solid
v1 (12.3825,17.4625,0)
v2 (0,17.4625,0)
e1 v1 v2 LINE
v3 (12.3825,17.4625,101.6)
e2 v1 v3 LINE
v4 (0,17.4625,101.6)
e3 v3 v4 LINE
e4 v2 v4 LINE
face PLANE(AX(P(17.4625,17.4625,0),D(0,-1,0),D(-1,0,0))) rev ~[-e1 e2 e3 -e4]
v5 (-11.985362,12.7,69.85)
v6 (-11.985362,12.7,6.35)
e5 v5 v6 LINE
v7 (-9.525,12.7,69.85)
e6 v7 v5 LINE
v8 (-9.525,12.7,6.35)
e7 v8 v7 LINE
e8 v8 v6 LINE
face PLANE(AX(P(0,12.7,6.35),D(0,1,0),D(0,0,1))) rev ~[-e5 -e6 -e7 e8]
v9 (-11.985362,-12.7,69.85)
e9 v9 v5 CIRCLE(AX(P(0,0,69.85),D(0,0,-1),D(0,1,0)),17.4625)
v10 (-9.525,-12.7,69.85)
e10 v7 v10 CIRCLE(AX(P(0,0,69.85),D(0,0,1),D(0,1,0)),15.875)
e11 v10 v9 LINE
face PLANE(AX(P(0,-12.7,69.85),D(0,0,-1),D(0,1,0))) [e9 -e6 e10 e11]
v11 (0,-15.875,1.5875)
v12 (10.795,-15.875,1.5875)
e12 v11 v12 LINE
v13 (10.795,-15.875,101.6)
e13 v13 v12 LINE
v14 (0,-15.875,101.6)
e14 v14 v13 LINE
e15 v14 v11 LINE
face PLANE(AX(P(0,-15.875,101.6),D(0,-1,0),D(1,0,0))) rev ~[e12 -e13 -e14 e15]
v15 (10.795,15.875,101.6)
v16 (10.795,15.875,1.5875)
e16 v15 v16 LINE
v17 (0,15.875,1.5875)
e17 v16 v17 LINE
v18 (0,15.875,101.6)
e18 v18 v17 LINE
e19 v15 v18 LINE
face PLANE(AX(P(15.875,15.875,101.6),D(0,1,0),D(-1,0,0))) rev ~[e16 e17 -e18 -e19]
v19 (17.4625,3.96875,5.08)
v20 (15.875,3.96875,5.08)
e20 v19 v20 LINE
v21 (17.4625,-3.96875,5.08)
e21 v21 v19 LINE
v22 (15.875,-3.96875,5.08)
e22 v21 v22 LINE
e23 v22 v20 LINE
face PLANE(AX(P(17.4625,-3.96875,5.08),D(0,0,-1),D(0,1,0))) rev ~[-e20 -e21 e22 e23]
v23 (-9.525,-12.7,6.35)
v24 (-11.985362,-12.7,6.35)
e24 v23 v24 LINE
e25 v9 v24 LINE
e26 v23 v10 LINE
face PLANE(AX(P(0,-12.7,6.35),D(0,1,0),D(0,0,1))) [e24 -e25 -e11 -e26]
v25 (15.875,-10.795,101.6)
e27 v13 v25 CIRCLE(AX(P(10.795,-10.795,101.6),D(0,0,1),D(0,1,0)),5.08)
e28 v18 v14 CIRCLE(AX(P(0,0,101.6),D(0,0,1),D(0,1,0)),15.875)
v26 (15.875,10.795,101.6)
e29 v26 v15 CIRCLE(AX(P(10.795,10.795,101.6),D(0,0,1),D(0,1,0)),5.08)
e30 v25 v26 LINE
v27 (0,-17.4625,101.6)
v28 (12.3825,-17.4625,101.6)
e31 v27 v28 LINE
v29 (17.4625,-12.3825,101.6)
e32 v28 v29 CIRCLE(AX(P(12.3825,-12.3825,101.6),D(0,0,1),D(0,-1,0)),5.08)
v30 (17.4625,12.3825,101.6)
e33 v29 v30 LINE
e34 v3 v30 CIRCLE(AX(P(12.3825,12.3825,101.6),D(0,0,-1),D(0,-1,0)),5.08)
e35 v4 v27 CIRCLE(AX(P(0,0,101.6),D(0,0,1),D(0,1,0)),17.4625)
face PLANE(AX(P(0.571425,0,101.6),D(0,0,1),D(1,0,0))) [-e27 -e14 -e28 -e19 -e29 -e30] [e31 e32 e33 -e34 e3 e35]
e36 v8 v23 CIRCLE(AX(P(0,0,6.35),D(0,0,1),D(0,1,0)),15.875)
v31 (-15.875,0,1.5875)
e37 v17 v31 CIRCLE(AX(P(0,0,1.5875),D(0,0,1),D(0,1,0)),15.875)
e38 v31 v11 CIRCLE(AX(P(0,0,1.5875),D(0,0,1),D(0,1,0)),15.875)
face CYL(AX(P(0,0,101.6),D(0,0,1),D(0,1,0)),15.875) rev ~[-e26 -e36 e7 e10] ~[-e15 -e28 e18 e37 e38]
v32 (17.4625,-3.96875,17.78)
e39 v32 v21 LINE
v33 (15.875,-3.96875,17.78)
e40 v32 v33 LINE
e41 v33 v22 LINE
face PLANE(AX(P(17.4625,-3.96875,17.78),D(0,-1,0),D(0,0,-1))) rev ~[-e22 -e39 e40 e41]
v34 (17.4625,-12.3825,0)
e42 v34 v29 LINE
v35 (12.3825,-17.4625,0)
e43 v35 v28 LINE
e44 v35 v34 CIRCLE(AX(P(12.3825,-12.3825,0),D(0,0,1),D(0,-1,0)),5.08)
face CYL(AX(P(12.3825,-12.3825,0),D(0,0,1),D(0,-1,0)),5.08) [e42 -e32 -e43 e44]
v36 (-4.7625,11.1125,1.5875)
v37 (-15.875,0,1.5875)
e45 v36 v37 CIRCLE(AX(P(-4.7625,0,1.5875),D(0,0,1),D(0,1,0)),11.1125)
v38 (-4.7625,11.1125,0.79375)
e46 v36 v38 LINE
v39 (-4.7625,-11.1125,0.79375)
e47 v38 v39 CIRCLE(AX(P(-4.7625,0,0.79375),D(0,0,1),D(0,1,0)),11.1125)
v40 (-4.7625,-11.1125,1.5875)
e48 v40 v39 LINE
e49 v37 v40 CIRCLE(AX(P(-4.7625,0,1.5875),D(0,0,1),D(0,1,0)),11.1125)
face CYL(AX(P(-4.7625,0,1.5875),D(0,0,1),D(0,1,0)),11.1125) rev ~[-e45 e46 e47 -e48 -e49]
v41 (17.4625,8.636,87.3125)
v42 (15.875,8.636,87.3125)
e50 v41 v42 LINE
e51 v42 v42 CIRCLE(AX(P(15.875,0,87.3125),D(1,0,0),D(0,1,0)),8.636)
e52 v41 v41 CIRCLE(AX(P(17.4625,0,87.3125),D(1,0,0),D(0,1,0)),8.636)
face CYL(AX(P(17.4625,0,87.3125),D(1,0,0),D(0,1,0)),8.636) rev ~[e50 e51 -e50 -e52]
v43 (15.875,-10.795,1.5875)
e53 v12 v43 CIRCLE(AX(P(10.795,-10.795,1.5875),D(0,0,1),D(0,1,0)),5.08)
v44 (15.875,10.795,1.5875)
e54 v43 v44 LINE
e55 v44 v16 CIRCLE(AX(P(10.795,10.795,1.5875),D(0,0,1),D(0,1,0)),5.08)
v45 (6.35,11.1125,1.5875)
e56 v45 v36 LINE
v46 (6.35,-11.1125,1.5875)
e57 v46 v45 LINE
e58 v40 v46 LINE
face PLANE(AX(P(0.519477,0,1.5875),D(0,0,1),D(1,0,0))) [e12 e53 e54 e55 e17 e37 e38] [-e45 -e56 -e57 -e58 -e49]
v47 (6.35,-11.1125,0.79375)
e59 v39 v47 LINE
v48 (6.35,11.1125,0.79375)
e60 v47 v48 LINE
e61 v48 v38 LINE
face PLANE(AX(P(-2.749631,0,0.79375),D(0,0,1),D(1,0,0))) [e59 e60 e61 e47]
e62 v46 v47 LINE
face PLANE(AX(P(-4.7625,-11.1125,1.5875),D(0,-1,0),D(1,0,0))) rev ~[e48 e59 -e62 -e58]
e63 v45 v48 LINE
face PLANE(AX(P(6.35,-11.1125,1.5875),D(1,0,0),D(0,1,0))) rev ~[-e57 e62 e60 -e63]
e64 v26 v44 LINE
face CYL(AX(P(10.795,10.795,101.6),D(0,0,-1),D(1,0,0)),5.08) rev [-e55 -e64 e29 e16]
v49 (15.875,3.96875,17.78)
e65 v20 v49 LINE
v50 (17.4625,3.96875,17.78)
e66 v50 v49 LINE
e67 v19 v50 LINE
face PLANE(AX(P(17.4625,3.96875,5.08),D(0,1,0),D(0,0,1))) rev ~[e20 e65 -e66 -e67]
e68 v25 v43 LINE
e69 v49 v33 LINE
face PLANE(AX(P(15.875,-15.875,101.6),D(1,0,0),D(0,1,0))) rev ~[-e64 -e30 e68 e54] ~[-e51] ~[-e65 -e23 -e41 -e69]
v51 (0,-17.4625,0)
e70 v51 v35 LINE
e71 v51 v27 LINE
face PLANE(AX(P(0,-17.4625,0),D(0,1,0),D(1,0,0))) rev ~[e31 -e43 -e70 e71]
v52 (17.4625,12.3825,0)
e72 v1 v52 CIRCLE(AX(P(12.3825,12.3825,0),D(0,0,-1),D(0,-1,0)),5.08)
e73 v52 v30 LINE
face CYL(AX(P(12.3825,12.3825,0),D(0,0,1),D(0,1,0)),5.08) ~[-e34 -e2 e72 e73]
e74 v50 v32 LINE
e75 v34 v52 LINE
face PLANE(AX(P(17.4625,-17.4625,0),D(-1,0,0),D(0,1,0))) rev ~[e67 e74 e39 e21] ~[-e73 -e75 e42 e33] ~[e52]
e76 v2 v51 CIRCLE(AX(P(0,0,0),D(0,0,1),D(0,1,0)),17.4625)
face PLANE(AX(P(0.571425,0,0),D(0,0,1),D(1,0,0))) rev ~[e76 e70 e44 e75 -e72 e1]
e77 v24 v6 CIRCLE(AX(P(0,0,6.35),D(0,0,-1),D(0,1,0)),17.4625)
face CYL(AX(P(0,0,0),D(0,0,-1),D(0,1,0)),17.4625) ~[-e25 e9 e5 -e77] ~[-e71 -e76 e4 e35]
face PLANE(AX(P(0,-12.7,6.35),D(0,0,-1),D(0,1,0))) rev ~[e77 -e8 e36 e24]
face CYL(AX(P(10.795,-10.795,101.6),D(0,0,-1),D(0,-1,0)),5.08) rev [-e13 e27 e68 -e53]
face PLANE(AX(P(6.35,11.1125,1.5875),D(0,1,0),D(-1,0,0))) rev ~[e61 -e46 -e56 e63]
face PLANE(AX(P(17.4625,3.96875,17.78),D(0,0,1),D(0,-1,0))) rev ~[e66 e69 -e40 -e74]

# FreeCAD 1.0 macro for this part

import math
import FreeCAD as App
import Part
import Sketcher

V = App.Vector
Q = App.Units.Quantity


def edges_at(feature, points):
    """Names of the edges that pass closest to the given points."""
    edges = feature.Shape.Edges
    near = lambda p: min(range(len(edges)), key=lambda i: edges[i].distToShape(Part.Vertex(*p))[0])
    return sorted({f"Edge{near(p) + 1}" for p in points})


def add_polygon(sketch, points):
    """Adds a closed chain of lines whose ends are joined by coincident constraints."""
    first, n = sketch.GeometryCount, len(points)
    for a, b in zip(points, points[1:] + points[:1]):
        sketch.addGeometry(Part.LineSegment(App.Vector(*a, 0), App.Vector(*b, 0)), False)
    for i in range(n):
        sketch.addConstraint(Sketcher.Constraint("Coincident", first + i, 2, first + (i + 1) % n, 1))

doc = App.newDocument("Part")
params = doc.addObject("Spreadsheet::Sheet", "Params")
for row, (alias, value) in enumerate([
    ("sketch1_radius", "0.6875 in"),
    ("sketch1_width", "0.6875 in"),
    ("pad1_length", "4 in"),
    ("sketch2_radius", "0.625 in"),
    ("sketch2_width", "0.625 in"),
    ("pocket1_length", "3.9375 in"),
    ("fillet_radius", "0.2 in"),
    ("fillet2_radius", "0.2 in"),
    ("sketch3_diameter", "0.68 in"),
    ("pocket2_length", "1 in"),
    ("sketch4_height", "0.5 in"),
    ("sketch4_width", "0.3125 in"),
    ("pocket3_length", "1 in"),
    ("sketch5_width", "1 in"),
    ("sketch5_height", "2.5 in"),
    ("pocket4_length", "1 in"),
    ("sketch6_radius", "0.4375 in"),
    ("sketch6_width", "0.4375 in"),
    ("pocket5_length", "0.03125 in"),
], start=1):
    params.set(f"A{row}", alias)
    params.set(f"B{row}", "=" + value)
    params.setAlias(f"B{row}", alias)

body = doc.addObject("PartDesign::Body", "Body")

sketch1 = doc.addObject("Sketcher::SketchObject", "Sketch")
body.addObject(sketch1)
sketch1.AttachmentSupport = (doc.XY_Plane, [""])
sketch1.MapMode = "FlatFace"
sketch1.addGeometry(Part.ArcOfCircle(Part.Circle(V(0, 0, 0), V(0, 0, 1), 17), math.radians(90), math.radians(270)), False)
sketch1.addGeometry(Part.LineSegment(V(0, -17, 0), V(17, -17, 0)), False)
sketch1.addGeometry(Part.LineSegment(V(17, -17, 0), V(17, 17, 0)), False)
sketch1.addGeometry(Part.LineSegment(V(17, 17, 0), V(0, 17, 0)), False)
sketch1.addConstraint(Sketcher.Constraint("Tangent", 0, 2, 1, 1))
sketch1.addConstraint(Sketcher.Constraint("Coincident", 1, 2, 2, 1))
sketch1.addConstraint(Sketcher.Constraint("Coincident", 2, 2, 3, 1))
sketch1.addConstraint(Sketcher.Constraint("Tangent", 3, 2, 0, 1))
sketch1.addConstraint(Sketcher.Constraint("Horizontal", 1))
sketch1.addConstraint(Sketcher.Constraint("Vertical", 2))
sketch1.addConstraint(Sketcher.Constraint("Horizontal", 3))
sketch1.addConstraint(Sketcher.Constraint("Coincident", 0, 3, -1, 1))
sketch1.addConstraint(Sketcher.Constraint("Radius", 0, Q("0.6875 in")))
sketch1.addConstraint(Sketcher.Constraint("DistanceX", 1, 1, 1, 2, Q("0.6875 in")))
sketch1.setExpression("Constraints[8]", "Params.sketch1_radius")
sketch1.setExpression("Constraints[9]", "Params.sketch1_width")
pad1 = doc.addObject("PartDesign::Pad", "Pad")
body.addObject(pad1)
pad1.Profile = sketch1
pad1.setExpression("Length", "Params.pad1_length")

sketch2 = doc.addObject("Sketcher::SketchObject", "Sketch001")
body.addObject(sketch2)
sketch2.AttachmentSupport = (doc.XY_Plane, [""])
sketch2.MapMode = "FlatFace"
sketch2.AttachmentOffset = App.Placement(V(0, 0, 4 * 25.4), App.Rotation())
sketch2.addGeometry(Part.ArcOfCircle(Part.Circle(V(0, 0, 0), V(0, 0, 1), 16), math.radians(90), math.radians(270)), False)
sketch2.addGeometry(Part.LineSegment(V(0, -16, 0), V(16, -16, 0)), False)
sketch2.addGeometry(Part.LineSegment(V(16, -16, 0), V(16, 16, 0)), False)
sketch2.addGeometry(Part.LineSegment(V(16, 16, 0), V(0, 16, 0)), False)
sketch2.addConstraint(Sketcher.Constraint("Tangent", 0, 2, 1, 1))
sketch2.addConstraint(Sketcher.Constraint("Coincident", 1, 2, 2, 1))
sketch2.addConstraint(Sketcher.Constraint("Coincident", 2, 2, 3, 1))
sketch2.addConstraint(Sketcher.Constraint("Tangent", 3, 2, 0, 1))
sketch2.addConstraint(Sketcher.Constraint("Horizontal", 1))
sketch2.addConstraint(Sketcher.Constraint("Vertical", 2))
sketch2.addConstraint(Sketcher.Constraint("Horizontal", 3))
sketch2.addConstraint(Sketcher.Constraint("Coincident", 0, 3, -1, 1))
sketch2.addConstraint(Sketcher.Constraint("Radius", 0, Q("0.625 in")))
sketch2.addConstraint(Sketcher.Constraint("DistanceX", 1, 1, 1, 2, Q("0.625 in")))
sketch2.setExpression("Constraints[8]", "Params.sketch2_radius")
sketch2.setExpression("Constraints[9]", "Params.sketch2_width")
pocket1 = doc.addObject("PartDesign::Pocket", "Pocket")
body.addObject(pocket1)
pocket1.Profile = sketch2
pocket1.setExpression("Length", "Params.pocket1_length")
doc.recompute()

fillet = doc.addObject("PartDesign::Fillet", "Fillet")
body.addObject(fillet)
fillet.Base = (pocket1, edges_at(pocket1, [(17.462, -17.462, 50.8), (17.462, 17.462, 50.8)]))
fillet.setExpression("Radius", "Params.fillet_radius")
doc.recompute()

fillet2 = doc.addObject("PartDesign::Fillet", "Fillet001")
body.addObject(fillet2)
fillet2.Base = (fillet, edges_at(fillet, [(15.875, 15.875, 51.594), (15.875, -15.875, 51.594)]))
fillet2.setExpression("Radius", "Params.fillet2_radius")

sketch3 = doc.addObject("Sketcher::SketchObject", "Sketch002")
body.addObject(sketch3)
sketch3.AttachmentSupport = (doc.YZ_Plane, [""])
sketch3.MapMode = "FlatFace"
sketch3.AttachmentOffset = App.Placement(V(0, 0, 0.6875 * 25.4), App.Rotation())
sketch3.addGeometry(Part.Circle(V(0, 87, 0), V(0, 0, 1), 9), False)
sketch3.addConstraint(Sketcher.Constraint("PointOnObject", 0, 3, -2))
sketch3.addConstraint(Sketcher.Constraint("Diameter", 0, Q("0.68 in")))
sketch3.addConstraint(Sketcher.Constraint("DistanceY", -1, 1, 0, 3, Q("3.4375 in")))
sketch3.setExpression("Constraints[1]", "Params.sketch3_diameter")
pocket2 = doc.addObject("PartDesign::Pocket", "Pocket001")
body.addObject(pocket2)
pocket2.Profile = sketch3
pocket2.setExpression("Length", "Params.pocket2_length")

sketch4 = doc.addObject("Sketcher::SketchObject", "Sketch003")
body.addObject(sketch4)
sketch4.AttachmentSupport = (doc.YZ_Plane, [""])
sketch4.MapMode = "FlatFace"
sketch4.AttachmentOffset = App.Placement(V(0, 0, 0.6875 * 25.4), App.Rotation())
add_polygon(sketch4, [(-4, 5), (4, 5), (4, 18), (-4, 18)])
sketch4.addConstraint(Sketcher.Constraint("Horizontal", 0))
sketch4.addConstraint(Sketcher.Constraint("Vertical", 1))
sketch4.addConstraint(Sketcher.Constraint("Horizontal", 2))
sketch4.addConstraint(Sketcher.Constraint("Vertical", 3))
sketch4.addConstraint(Sketcher.Constraint("DistanceY", 1, 1, 1, 2, Q("0.5 in")))
sketch4.addConstraint(Sketcher.Constraint("DistanceY", -1, 1, 0, 2, Q("0.2 in")))
sketch4.addConstraint(Sketcher.Constraint("DistanceX", 0, 1, 0, 2, Q("0.3125 in")))
sketch4.addConstraint(Sketcher.Constraint("DistanceX", -1, 1, 0, 2, Q("0.15625 in")))
sketch4.setExpression("Constraints[8]", "Params.sketch4_height")
sketch4.setExpression("Constraints[10]", "Params.sketch4_width")
pocket3 = doc.addObject("PartDesign::Pocket", "Pocket002")
body.addObject(pocket3)
pocket3.Profile = sketch4
pocket3.setExpression("Length", "Params.pocket3_length")

sketch5 = doc.addObject("Sketcher::SketchObject", "Sketch004")
body.addObject(sketch5)
sketch5.AttachmentSupport = (doc.YZ_Plane, [""])
sketch5.MapMode = "FlatFace"
add_polygon(sketch5, [(-13, 70), (-13, 6), (13, 6), (13, 70)])
sketch5.addConstraint(Sketcher.Constraint("Vertical", 0))
sketch5.addConstraint(Sketcher.Constraint("Horizontal", 1))
sketch5.addConstraint(Sketcher.Constraint("Vertical", 2))
sketch5.addConstraint(Sketcher.Constraint("Horizontal", 3))
sketch5.addConstraint(Sketcher.Constraint("DistanceX", 1, 1, 1, 2, Q("1 in")))
sketch5.addConstraint(Sketcher.Constraint("DistanceY", 0, 2, 0, 1, Q("2.5 in")))
sketch5.addConstraint(Sketcher.Constraint("DistanceX", 0, 2, -1, 1, Q("0.5 in")))
sketch5.addConstraint(Sketcher.Constraint("DistanceY", -1, 1, 0, 2, Q("0.25 in")))
sketch5.setExpression("Constraints[8]", "Params.sketch5_width")
sketch5.setExpression("Constraints[9]", "Params.sketch5_height")
pocket4 = doc.addObject("PartDesign::Pocket", "Pocket003")
body.addObject(pocket4)
pocket4.Profile = sketch5
pocket4.setExpression("Length", "Params.pocket4_length")

sketch6 = doc.addObject("Sketcher::SketchObject", "Sketch005")
body.addObject(sketch6)
sketch6.AttachmentSupport = (doc.XY_Plane, [""])
sketch6.MapMode = "FlatFace"
sketch6.AttachmentOffset = App.Placement(V(0, 0, 0.0625 * 25.4), App.Rotation())
sketch6.addGeometry(Part.LineSegment(V(6, 11, 0), V(-5, 11, 0)), False)
sketch6.addGeometry(Part.ArcOfCircle(Part.Circle(V(-5, 0, 0), V(0, 0, 1), 11), math.radians(90), math.radians(270)), False)
sketch6.addGeometry(Part.LineSegment(V(-5, -11, 0), V(6, -11, 0)), False)
sketch6.addGeometry(Part.LineSegment(V(6, -11, 0), V(6, 11, 0)), False)
sketch6.addConstraint(Sketcher.Constraint("Tangent", 0, 2, 1, 1))
sketch6.addConstraint(Sketcher.Constraint("Tangent", 1, 2, 2, 1))
sketch6.addConstraint(Sketcher.Constraint("Coincident", 2, 2, 3, 1))
sketch6.addConstraint(Sketcher.Constraint("Coincident", 3, 2, 0, 1))
sketch6.addConstraint(Sketcher.Constraint("Horizontal", 0))
sketch6.addConstraint(Sketcher.Constraint("Horizontal", 2))
sketch6.addConstraint(Sketcher.Constraint("Vertical", 3))
sketch6.addConstraint(Sketcher.Constraint("PointOnObject", 1, 3, -1))
sketch6.addConstraint(Sketcher.Constraint("Radius", 1, Q("0.4375 in")))
sketch6.addConstraint(Sketcher.Constraint("DistanceX", 0, 2, 0, 1, Q("0.4375 in")))
sketch6.addConstraint(Sketcher.Constraint("DistanceX", -1, 1, 2, 2, Q("0.25 in")))
sketch6.setExpression("Constraints[8]", "Params.sketch6_radius")
sketch6.setExpression("Constraints[9]", "Params.sketch6_width")
pocket5 = doc.addObject("PartDesign::Pocket", "Pocket004")
body.addObject(pocket5)
pocket5.Profile = sketch6
pocket5.setExpression("Length", "Params.pocket5_length")

doc.recompute()
